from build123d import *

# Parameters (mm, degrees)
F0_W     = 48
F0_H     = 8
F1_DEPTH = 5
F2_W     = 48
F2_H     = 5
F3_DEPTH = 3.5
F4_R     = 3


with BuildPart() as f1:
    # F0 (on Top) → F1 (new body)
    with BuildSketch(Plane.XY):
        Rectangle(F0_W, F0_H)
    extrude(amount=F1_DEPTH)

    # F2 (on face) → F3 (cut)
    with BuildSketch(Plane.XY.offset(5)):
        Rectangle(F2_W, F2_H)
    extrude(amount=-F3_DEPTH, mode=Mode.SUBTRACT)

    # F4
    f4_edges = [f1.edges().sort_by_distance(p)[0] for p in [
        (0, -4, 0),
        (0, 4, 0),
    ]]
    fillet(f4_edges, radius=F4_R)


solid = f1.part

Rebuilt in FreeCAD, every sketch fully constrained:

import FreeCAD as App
import Part
import Sketcher
from FreeCAD import Vector
Q = App.Units.Quantity


def edges_at(feature, points):
    """Names of the edges that pass closest to the given points."""
    edges = feature.Shape.Edges
    near = lambda p: min(range(len(edges)), key=lambda i: edges[i].distToShape(Part.Vertex(*p))[0])
    return sorted({f"Edge{near(p) + 1}" for p in points})


def add_polygon(sketch, points):
    """Adds a closed chain of lines whose ends are joined by coincident constraints."""
    first, n = sketch.GeometryCount, len(points)
    for a, b in zip(points, points[1:] + points[:1]):
        sketch.addGeometry(Part.LineSegment(App.Vector(*a, 0), App.Vector(*b, 0)), False)
    for i in range(n):
        sketch.addConstraint(Sketcher.Constraint("Coincident", first + i, 2, first + (i + 1) % n, 1))

doc = App.newDocument("Part")
body = doc.addObject("PartDesign::Body", "Body")

# Sketch on XY plane
sketch1 = body.newObject("Sketcher::SketchObject", "Sketch")
sketch1.AttachmentSupport = (doc.getObject("XY_Plane"), [""])
sketch1.MapMode = "FlatFace"
add_polygon(sketch1, [(-24, 4), (-24, -4), (24, -4), (24, 4)])  # lines 0-3
sketch1.addConstraint([
    Sketcher.Constraint("Vertical", 0),
    Sketcher.Constraint("Horizontal", 1),
    Sketcher.Constraint("Vertical", 2),
    Sketcher.Constraint("Horizontal", 3),
    Sketcher.Constraint("Symmetric", 0, 2, 2, 2, -1, 1),
    Sketcher.Constraint("DistanceX", 1, 1, 1, 2, Q("48 mm")),
    Sketcher.Constraint("DistanceY", 0, 2, 0, 1, Q("8 mm")),
])
pad1 = body.newObject("PartDesign::Pad", "Pad")
pad1.Profile = sketch1
pad1.Length = 5

# Sketch on XY plane
sketch2 = body.newObject("Sketcher::SketchObject", "Sketch001")
sketch2.AttachmentSupport = (doc.getObject("XY_Plane"), [""])
sketch2.MapMode = "FlatFace"
sketch2.AttachmentOffset = App.Placement(Vector(0, 0, 5), App.Rotation())
add_polygon(sketch2, [(-24, 2.5), (-24, -2.5), (24, -2.5), (24, 2.5)])  # lines 0-3
sketch2.addConstraint([
    Sketcher.Constraint("Vertical", 0),
    Sketcher.Constraint("Horizontal", 1),
    Sketcher.Constraint("Vertical", 2),
    Sketcher.Constraint("Horizontal", 3),
    Sketcher.Constraint("Symmetric", 0, 2, 2, 2, -1, 1),
    Sketcher.Constraint("DistanceX", 1, 1, 1, 2, Q("48 mm")),
    Sketcher.Constraint("DistanceY", 0, 2, 0, 1, Q("5 mm")),
])
pocket1 = body.newObject("PartDesign::Pocket", "Pocket")
pocket1.Profile = sketch2
pocket1.Length = 3.5
doc.recompute()

fillet = body.newObject("PartDesign::Fillet", "Fillet")
fillet.Base = (pocket1, edges_at(pocket1, [(0, -4, 0), (0, 4, 0)]))
fillet.Radius = 3

doc.recompute()
